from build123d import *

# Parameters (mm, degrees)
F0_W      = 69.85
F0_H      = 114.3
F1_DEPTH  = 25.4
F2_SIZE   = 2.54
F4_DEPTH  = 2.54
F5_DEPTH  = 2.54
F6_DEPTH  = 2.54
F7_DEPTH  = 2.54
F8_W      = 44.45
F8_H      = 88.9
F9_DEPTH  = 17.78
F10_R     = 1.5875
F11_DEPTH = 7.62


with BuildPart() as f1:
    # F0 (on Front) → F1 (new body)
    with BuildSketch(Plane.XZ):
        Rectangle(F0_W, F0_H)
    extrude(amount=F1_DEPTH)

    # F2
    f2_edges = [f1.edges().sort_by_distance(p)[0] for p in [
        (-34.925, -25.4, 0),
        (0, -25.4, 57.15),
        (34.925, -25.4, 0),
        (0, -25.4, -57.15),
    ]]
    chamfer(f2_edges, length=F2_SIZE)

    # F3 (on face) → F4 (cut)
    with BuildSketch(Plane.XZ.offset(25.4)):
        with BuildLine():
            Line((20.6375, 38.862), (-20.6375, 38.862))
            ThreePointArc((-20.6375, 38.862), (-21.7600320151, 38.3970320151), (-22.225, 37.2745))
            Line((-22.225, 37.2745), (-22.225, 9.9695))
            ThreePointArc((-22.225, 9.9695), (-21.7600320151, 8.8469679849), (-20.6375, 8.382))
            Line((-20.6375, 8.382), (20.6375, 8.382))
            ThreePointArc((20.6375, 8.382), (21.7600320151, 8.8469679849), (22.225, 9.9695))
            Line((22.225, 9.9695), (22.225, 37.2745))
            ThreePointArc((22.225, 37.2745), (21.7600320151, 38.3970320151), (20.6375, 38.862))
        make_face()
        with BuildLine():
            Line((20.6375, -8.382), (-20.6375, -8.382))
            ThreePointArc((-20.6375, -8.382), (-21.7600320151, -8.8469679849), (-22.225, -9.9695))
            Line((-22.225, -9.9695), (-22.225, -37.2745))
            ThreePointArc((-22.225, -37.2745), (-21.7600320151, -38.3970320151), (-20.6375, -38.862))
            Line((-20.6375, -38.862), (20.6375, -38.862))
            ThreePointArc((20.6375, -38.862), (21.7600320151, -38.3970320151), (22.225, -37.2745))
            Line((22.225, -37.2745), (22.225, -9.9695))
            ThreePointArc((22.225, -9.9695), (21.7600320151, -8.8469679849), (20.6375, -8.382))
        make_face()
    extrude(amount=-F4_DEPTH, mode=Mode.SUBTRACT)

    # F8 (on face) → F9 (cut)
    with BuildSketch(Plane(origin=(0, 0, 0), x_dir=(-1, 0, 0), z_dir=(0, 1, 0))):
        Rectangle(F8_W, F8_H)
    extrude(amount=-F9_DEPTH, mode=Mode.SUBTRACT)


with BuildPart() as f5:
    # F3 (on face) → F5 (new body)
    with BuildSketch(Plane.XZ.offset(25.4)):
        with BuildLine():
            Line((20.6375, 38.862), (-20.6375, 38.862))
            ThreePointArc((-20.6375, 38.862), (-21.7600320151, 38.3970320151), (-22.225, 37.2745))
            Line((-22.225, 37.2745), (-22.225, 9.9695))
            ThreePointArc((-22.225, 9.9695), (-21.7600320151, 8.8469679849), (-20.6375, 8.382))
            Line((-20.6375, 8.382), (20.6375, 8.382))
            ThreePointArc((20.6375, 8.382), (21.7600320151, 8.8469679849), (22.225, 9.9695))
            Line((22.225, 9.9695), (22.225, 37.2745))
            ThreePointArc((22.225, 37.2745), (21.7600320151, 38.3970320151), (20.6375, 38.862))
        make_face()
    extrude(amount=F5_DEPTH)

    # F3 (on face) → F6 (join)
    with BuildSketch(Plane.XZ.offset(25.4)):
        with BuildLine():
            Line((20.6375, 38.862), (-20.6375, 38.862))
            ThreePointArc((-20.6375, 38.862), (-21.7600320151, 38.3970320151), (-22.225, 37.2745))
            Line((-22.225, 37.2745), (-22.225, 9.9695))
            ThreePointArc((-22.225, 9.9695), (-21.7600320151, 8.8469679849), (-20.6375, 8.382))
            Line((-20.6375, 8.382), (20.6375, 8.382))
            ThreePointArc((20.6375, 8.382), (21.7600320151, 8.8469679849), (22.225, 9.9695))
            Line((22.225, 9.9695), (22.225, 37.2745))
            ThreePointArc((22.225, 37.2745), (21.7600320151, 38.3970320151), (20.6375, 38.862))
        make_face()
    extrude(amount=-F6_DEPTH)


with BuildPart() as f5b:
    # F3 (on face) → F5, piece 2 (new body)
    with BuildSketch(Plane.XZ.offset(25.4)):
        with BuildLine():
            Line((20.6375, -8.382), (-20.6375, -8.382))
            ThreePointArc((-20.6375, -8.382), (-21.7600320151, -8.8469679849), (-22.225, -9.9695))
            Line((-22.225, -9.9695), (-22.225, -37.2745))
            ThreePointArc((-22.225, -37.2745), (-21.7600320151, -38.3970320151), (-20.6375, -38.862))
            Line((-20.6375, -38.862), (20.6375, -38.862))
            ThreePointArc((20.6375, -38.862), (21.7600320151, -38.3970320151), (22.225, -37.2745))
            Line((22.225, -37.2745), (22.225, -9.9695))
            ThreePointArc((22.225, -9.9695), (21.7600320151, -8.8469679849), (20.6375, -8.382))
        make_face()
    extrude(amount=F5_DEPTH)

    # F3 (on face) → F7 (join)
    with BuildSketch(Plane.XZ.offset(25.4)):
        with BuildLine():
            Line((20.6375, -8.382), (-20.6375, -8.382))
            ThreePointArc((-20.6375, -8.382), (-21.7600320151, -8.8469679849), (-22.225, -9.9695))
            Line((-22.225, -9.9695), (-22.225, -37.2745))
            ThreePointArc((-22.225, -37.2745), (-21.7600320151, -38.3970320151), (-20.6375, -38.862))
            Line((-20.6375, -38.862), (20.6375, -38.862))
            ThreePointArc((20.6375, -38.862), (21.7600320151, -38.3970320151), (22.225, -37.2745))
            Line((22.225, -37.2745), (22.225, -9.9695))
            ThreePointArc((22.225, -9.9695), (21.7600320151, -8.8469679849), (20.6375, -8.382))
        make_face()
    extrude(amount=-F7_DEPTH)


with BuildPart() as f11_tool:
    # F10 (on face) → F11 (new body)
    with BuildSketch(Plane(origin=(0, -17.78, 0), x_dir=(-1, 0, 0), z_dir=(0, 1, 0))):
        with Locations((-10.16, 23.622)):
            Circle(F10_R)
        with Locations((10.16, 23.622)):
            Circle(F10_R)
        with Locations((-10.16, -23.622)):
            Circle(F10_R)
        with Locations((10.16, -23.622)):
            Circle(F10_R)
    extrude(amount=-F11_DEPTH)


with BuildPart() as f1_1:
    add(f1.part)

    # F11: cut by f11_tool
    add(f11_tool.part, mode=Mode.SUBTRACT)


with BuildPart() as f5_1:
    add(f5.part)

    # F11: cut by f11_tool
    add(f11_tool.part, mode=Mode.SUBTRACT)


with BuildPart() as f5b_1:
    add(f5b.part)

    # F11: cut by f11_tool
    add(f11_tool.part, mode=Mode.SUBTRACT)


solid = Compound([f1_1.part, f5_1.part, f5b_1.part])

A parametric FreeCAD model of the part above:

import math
import FreeCAD as App
import Part
import Sketcher
Q = App.Units.Quantity


def edges_at(feature, points):
    """Names of the edges that pass closest to the given points."""
    edges = feature.Shape.Edges
    near = lambda p: min(range(len(edges)), key=lambda i: edges[i].distToShape(Part.Vertex(*p))[0])
    return sorted({f"Edge{near(p) + 1}" for p in points})

doc = App.newDocument("Part")
params = doc.addObject("Spreadsheet::Sheet", "Params")
for row, (alias, value) in enumerate([
    ("sketch1_height", "4.5 in"),
    ("sketch1_width", "2.75 in"),
    ("pad1_length", "1 in"),
    ("chamfer_size", "0.1 in"),
    ("sketch2_radius", "0.0625 in"),
    ("sketch2_width", "1.625 in"),
    ("pocket1_length", "0.1 in"),
    ("sketch3_height", "3.5 in"),
    ("sketch3_width", "1.75 in"),
    ("pocket2_length", "0.7 in"),
    ("sketch4_radius", "0.0625 in"),
    ("sketch4_width", "1.625 in"),
    ("pad2_length", "0.1 in"),
    ("sketch5_radius", "0.0625 in"),
    ("sketch5_width", "1.625 in"),
    ("pad3_length", "0.1 in"),
    ("sketch6_radius", "0.0625 in"),
    ("sketch6_width", "1.625 in"),
    ("pad4_length", "0.1 in"),
    ("sketch7_radius", "0.0625 in"),
    ("sketch7_width", "1.625 in"),
    ("pad5_length", "0.1 in"),
    ("sketch8_diameter", "0.125 in"),
    ("pad6_length", "0.3 in"),
], start=1):
    params.set(f"A{row}", alias)
    params.set(f"B{row}", "=" + value)
    params.setAlias(f"B{row}", alias)

body = doc.addObject("PartDesign::Body", "Body")

# Sketch on XZ plane
sketch1 = body.newObject("Sketcher::SketchObject", "Sketch")
sketch1.AttachmentSupport = (doc.getObject("XZ_Plane"), [""])
sketch1.MapMode = "FlatFace"
sketch1.addGeometry([
    Part.LineSegment(App.Vector(-34.925, 57.15, 0), App.Vector(-34.925, -57.15, 0)),
    Part.LineSegment(App.Vector(-34.925, -57.15, 0), App.Vector(34.925, -57.15, 0)),
    Part.LineSegment(App.Vector(34.925, -57.15, 0), App.Vector(34.925, 57.15, 0)),
    Part.LineSegment(App.Vector(34.925, 57.15, 0), App.Vector(-34.925, 57.15, 0)),
], False)
sketch1.addConstraint([
    Sketcher.Constraint("Coincident", 0, 2, 1, 1),
    Sketcher.Constraint("Coincident", 1, 2, 2, 1),
    Sketcher.Constraint("Coincident", 2, 2, 3, 1),
    Sketcher.Constraint("Coincident", 3, 2, 0, 1),
    Sketcher.Constraint("Vertical", 0),
    Sketcher.Constraint("Horizontal", 1),
    Sketcher.Constraint("Vertical", 2),
    Sketcher.Constraint("Horizontal", 3),
    Sketcher.Constraint("Symmetric", 0, 2, 2, 2, -1, 1),
    Sketcher.Constraint("DistanceY", 0, 2, 0, 1, Q("4.5 in")),
    Sketcher.Constraint("DistanceX", 1, 1, 1, 2, Q("2.75 in")),
])
sketch1.setExpression("Constraints[9]", "Params.sketch1_height")
sketch1.setExpression("Constraints[10]", "Params.sketch1_width")
pad1 = body.newObject("PartDesign::Pad", "Pad")
pad1.Profile = sketch1
pad1.setExpression("Length", "Params.pad1_length")
doc.recompute()

chamfer = body.newObject("PartDesign::Chamfer", "Chamfer")
chamfer.Base = (pad1, edges_at(pad1, [
    (-34.925, -25.4, 0),
    (0, -25.4, 57.15),
    (34.925, -25.4, 0),
    (0, -25.4, -57.15),
]))
chamfer.setExpression("Size", "Params.chamfer_size")

# Sketch on XZ plane
sketch2 = body.newObject("Sketcher::SketchObject", "Sketch001")
sketch2.AttachmentSupport = (doc.getObject("XZ_Plane"), [""])
sketch2.MapMode = "FlatFace"
sketch2.AttachmentOffset = App.Placement(App.Vector(0, 0, 1 * 25.4), App.Rotation())
sketch2.addGeometry([
    Part.LineSegment(App.Vector(20.6375, 38.862, 0), App.Vector(-20.6375, 38.862, 0)),  # 0
    Part.ArcOfCircle(Part.Circle(App.Vector(-20.6375, 37.2745, 0), App.Vector(0, 0, 1), 1.5875), math.radians(90), math.radians(180)),  # 1
    Part.LineSegment(App.Vector(-22.225, 37.2745, 0), App.Vector(-22.225, 9.9695, 0)),  # 2
    Part.ArcOfCircle(Part.Circle(App.Vector(-20.6375, 9.9695, 0), App.Vector(0, 0, 1), 1.5875), math.radians(180), math.radians(270)),  # 3
    Part.LineSegment(App.Vector(-20.6375, 8.382, 0), App.Vector(20.6375, 8.382, 0)),  # 4
    Part.ArcOfCircle(Part.Circle(App.Vector(20.6375, 9.9695, 0), App.Vector(0, 0, 1), 1.5875), math.radians(-90), math.radians(0)),  # 5
    Part.LineSegment(App.Vector(22.225, 9.9695, 0), App.Vector(22.225, 37.2745, 0)),  # 6
    Part.ArcOfCircle(Part.Circle(App.Vector(20.6375, 37.2745, 0), App.Vector(0, 0, 1), 1.5875), math.radians(0), math.radians(90)),  # 7
    Part.LineSegment(App.Vector(20.6375, -8.382, 0), App.Vector(-20.6375, -8.382, 0)),  # 8
    Part.ArcOfCircle(Part.Circle(App.Vector(-20.6375, -9.9695, 0), App.Vector(0, 0, 1), 1.5875), math.radians(90), math.radians(180)),  # 9
    Part.LineSegment(App.Vector(-22.225, -9.9695, 0), App.Vector(-22.225, -37.2745, 0)),  # 10
    Part.ArcOfCircle(Part.Circle(App.Vector(-20.6375, -37.2745, 0), App.Vector(0, 0, 1), 1.5875), math.radians(180), math.radians(270)),  # 11
    Part.LineSegment(App.Vector(-20.6375, -38.862, 0), App.Vector(20.6375, -38.862, 0)),  # 12
    Part.ArcOfCircle(Part.Circle(App.Vector(20.6375, -37.2745, 0), App.Vector(0, 0, 1), 1.5875), math.radians(-90), math.radians(0)),  # 13
    Part.LineSegment(App.Vector(22.225, -37.2745, 0), App.Vector(22.225, -9.9695, 0)),  # 14
    Part.ArcOfCircle(Part.Circle(App.Vector(20.6375, -9.9695, 0), App.Vector(0, 0, 1), 1.5875), math.radians(0), math.radians(90)),  # 15
], False)
sketch2.addConstraint([
    Sketcher.Constraint("Tangent", 0, 2, 1, 1),
    Sketcher.Constraint("Tangent", 1, 2, 2, 1),
    Sketcher.Constraint("Tangent", 2, 2, 3, 1),
    Sketcher.Constraint("Tangent", 3, 2, 4, 1),
    Sketcher.Constraint("Tangent", 4, 2, 5, 1),
    Sketcher.Constraint("Tangent", 5, 2, 6, 1),
    Sketcher.Constraint("Tangent", 6, 2, 7, 1),
    Sketcher.Constraint("Tangent", 7, 2, 0, 1),
    Sketcher.Constraint("Tangent", 8, 2, 9, 1),
    Sketcher.Constraint("Tangent", 9, 2, 10, 1),
    Sketcher.Constraint("Tangent", 10, 2, 11, 1),
    Sketcher.Constraint("Tangent", 11, 2, 12, 1),
    Sketcher.Constraint("Tangent", 12, 2, 13, 1),
    Sketcher.Constraint("Tangent", 13, 2, 14, 1),
    Sketcher.Constraint("Tangent", 14, 2, 15, 1),
    Sketcher.Constraint("Tangent", 15, 2, 8, 1),
    Sketcher.Constraint("Horizontal", 0),
    Sketcher.Constraint("Vertical", 2),
    Sketcher.Constraint("Horizontal", 4),
    Sketcher.Constraint("Vertical", 6),
    Sketcher.Constraint("Horizontal", 8),
    Sketcher.Constraint("Vertical", 10),
    Sketcher.Constraint("Horizontal", 12),
    Sketcher.Constraint("Vertical", 14),
    Sketcher.Constraint("Equal", 1, 3),
    Sketcher.Constraint("Equal", 3, 5),
    Sketcher.Constraint("Equal", 5, 7),
    Sketcher.Constraint("Equal", 7, 9),
    Sketcher.Constraint("Equal", 9, 11),
    Sketcher.Constraint("Equal", 11, 13),
    Sketcher.Constraint("Equal", 13, 15),
    Sketcher.Constraint("Symmetric", 5, 3, 9, 3, -1, 1),
    Sketcher.Constraint("Symmetric", 1, 3, 13, 3, -1, 1),
    Sketcher.Constraint("Vertical", 3, 3, 9, 3),
    Sketcher.Constraint("Radius", 1, Q("0.0625 in")),
    Sketcher.Constraint("DistanceY", 4, 2, 7, 2, Q("1.2 in")),
    Sketcher.Constraint("DistanceX", 0, 2, 0, 1, Q("1.625 in")),
    Sketcher.Constraint("DistanceY", -1, 1, 0, 2, Q("1.53 in")),
])
sketch2.setExpression("Constraints[34]", "Params.sketch2_radius")
sketch2.setExpression("Constraints[36]", "Params.sketch2_width")
pocket1 = body.newObject("PartDesign::Pocket", "Pocket")
pocket1.Profile = sketch2
pocket1.setExpression("Length", "Params.pocket1_length")

# Sketch on XZ plane
sketch3 = body.newObject("Sketcher::SketchObject", "Sketch002")
sketch3.AttachmentSupport = (doc.getObject("XZ_Plane"), [""])
sketch3.MapMode = "FlatFace"
sketch3.addGeometry([
    Part.LineSegment(App.Vector(22.225, 44.45, 0), App.Vector(22.225, -44.45, 0)),
    Part.LineSegment(App.Vector(22.225, -44.45, 0), App.Vector(-22.225, -44.45, 0)),
    Part.LineSegment(App.Vector(-22.225, -44.45, 0), App.Vector(-22.225, 44.45, 0)),
    Part.LineSegment(App.Vector(-22.225, 44.45, 0), App.Vector(22.225, 44.45, 0)),
], False)
sketch3.addConstraint([
    Sketcher.Constraint("Coincident", 0, 2, 1, 1),
    Sketcher.Constraint("Coincident", 1, 2, 2, 1),
    Sketcher.Constraint("Coincident", 2, 2, 3, 1),
    Sketcher.Constraint("Coincident", 3, 2, 0, 1),
    Sketcher.Constraint("Vertical", 0),
    Sketcher.Constraint("Horizontal", 1),
    Sketcher.Constraint("Vertical", 2),
    Sketcher.Constraint("Horizontal", 3),
    Sketcher.Constraint("Symmetric", 0, 2, 2, 2, -1, 1),
    Sketcher.Constraint("DistanceY", 0, 2, 0, 1, Q("3.5 in")),
    Sketcher.Constraint("DistanceX", 1, 2, 1, 1, Q("1.75 in")),
])
sketch3.setExpression("Constraints[9]", "Params.sketch3_height")
sketch3.setExpression("Constraints[10]", "Params.sketch3_width")
pocket2 = body.newObject("PartDesign::Pocket", "Pocket001")
pocket2.Profile = sketch3
pocket2.setExpression("Length", "Params.pocket2_length")
pocket2.Reversed = True
body2 = doc.addObject("PartDesign::Body", "Body001")

# Sketch on XZ plane
sketch4 = body2.newObject("Sketcher::SketchObject", "Sketch003")
sketch4.AttachmentSupport = (doc.getObject("XZ_Plane001"), [""])
sketch4.MapMode = "FlatFace"
sketch4.AttachmentOffset = App.Placement(App.Vector(0, 0, 1 * 25.4), App.Rotation())
sketch4.addGeometry([
    Part.LineSegment(App.Vector(20.6375, 38.862, 0), App.Vector(-20.6375, 38.862, 0)),  # 0
    Part.ArcOfCircle(Part.Circle(App.Vector(-20.6375, 37.2745, 0), App.Vector(0, 0, 1), 1.5875), math.radians(90), math.radians(180)),  # 1
    Part.LineSegment(App.Vector(-22.225, 37.2745, 0), App.Vector(-22.225, 9.9695, 0)),  # 2
    Part.ArcOfCircle(Part.Circle(App.Vector(-20.6375, 9.9695, 0), App.Vector(0, 0, 1), 1.5875), math.radians(180), math.radians(270)),  # 3
    Part.LineSegment(App.Vector(-20.6375, 8.382, 0), App.Vector(20.6375, 8.382, 0)),  # 4
    Part.ArcOfCircle(Part.Circle(App.Vector(20.6375, 9.9695, 0), App.Vector(0, 0, 1), 1.5875), math.radians(-90), math.radians(0)),  # 5
    Part.LineSegment(App.Vector(22.225, 9.9695, 0), App.Vector(22.225, 37.2745, 0)),  # 6
    Part.ArcOfCircle(Part.Circle(App.Vector(20.6375, 37.2745, 0), App.Vector(0, 0, 1), 1.5875), math.radians(0), math.radians(90)),  # 7
], False)
sketch4.addConstraint([
    Sketcher.Constraint("Tangent", 0, 2, 1, 1),
    Sketcher.Constraint("Tangent", 1, 2, 2, 1),
    Sketcher.Constraint("Tangent", 2, 2, 3, 1),
    Sketcher.Constraint("Tangent", 3, 2, 4, 1),
    Sketcher.Constraint("Tangent", 4, 2, 5, 1),
    Sketcher.Constraint("Tangent", 5, 2, 6, 1),
    Sketcher.Constraint("Tangent", 6, 2, 7, 1),
    Sketcher.Constraint("Tangent", 7, 2, 0, 1),
    Sketcher.Constraint("Horizontal", 0),
    Sketcher.Constraint("Vertical", 2),
    Sketcher.Constraint("Horizontal", 4),
    Sketcher.Constraint("Vertical", 6),
    Sketcher.Constraint("Equal", 1, 3),
    Sketcher.Constraint("Equal", 3, 5),
    Sketcher.Constraint("Equal", 5, 7),
    Sketcher.Constraint("Radius", 1, Q("0.0625 in")),
    Sketcher.Constraint("DistanceY", 3, 2, 0, 2, Q("1.2 in")),
    Sketcher.Constraint("DistanceX", 0, 2, 0, 1, Q("1.625 in")),
    Sketcher.Constraint("DistanceY", -1, 1, 0, 2, Q("1.53 in")),
    Sketcher.Constraint("DistanceX", 1, 3, -1, 1, Q("0.8125 in")),
])
sketch4.setExpression("Constraints[15]", "Params.sketch4_radius")
sketch4.setExpression("Constraints[17]", "Params.sketch4_width")
pad2 = body2.newObject("PartDesign::Pad", "Pad001")
pad2.Profile = sketch4
pad2.setExpression("Length", "Params.pad2_length")

# Sketch on XZ plane
sketch5 = body2.newObject("Sketcher::SketchObject", "Sketch004")
sketch5.AttachmentSupport = (doc.getObject("XZ_Plane001"), [""])
sketch5.MapMode = "FlatFace"
sketch5.AttachmentOffset = App.Placement(App.Vector(0, 0, 1 * 25.4), App.Rotation())
sketch5.addGeometry([
    Part.LineSegment(App.Vector(20.6375, 38.862, 0), App.Vector(-20.6375, 38.862, 0)),  # 0
    Part.ArcOfCircle(Part.Circle(App.Vector(-20.6375, 37.2745, 0), App.Vector(0, 0, 1), 1.5875), math.radians(90), math.radians(180)),  # 1
    Part.LineSegment(App.Vector(-22.225, 37.2745, 0), App.Vector(-22.225, 9.9695, 0)),  # 2
    Part.ArcOfCircle(Part.Circle(App.Vector(-20.6375, 9.9695, 0), App.Vector(0, 0, 1), 1.5875), math.radians(180), math.radians(270)),  # 3
    Part.LineSegment(App.Vector(-20.6375, 8.382, 0), App.Vector(20.6375, 8.382, 0)),  # 4
    Part.ArcOfCircle(Part.Circle(App.Vector(20.6375, 9.9695, 0), App.Vector(0, 0, 1), 1.5875), math.radians(-90), math.radians(0)),  # 5
    Part.LineSegment(App.Vector(22.225, 9.9695, 0), App.Vector(22.225, 37.2745, 0)),  # 6
    Part.ArcOfCircle(Part.Circle(App.Vector(20.6375, 37.2745, 0), App.Vector(0, 0, 1), 1.5875), math.radians(0), math.radians(90)),  # 7
], False)
sketch5.addConstraint([
    Sketcher.Constraint("Tangent", 0, 2, 1, 1),
    Sketcher.Constraint("Tangent", 1, 2, 2, 1),
    Sketcher.Constraint("Tangent", 2, 2, 3, 1),
    Sketcher.Constraint("Tangent", 3, 2, 4, 1),
    Sketcher.Constraint("Tangent", 4, 2, 5, 1),
    Sketcher.Constraint("Tangent", 5, 2, 6, 1),
    Sketcher.Constraint("Tangent", 6, 2, 7, 1),
    Sketcher.Constraint("Tangent", 7, 2, 0, 1),
    Sketcher.Constraint("Horizontal", 0),
    Sketcher.Constraint("Vertical", 2),
    Sketcher.Constraint("Horizontal", 4),
    Sketcher.Constraint("Vertical", 6),
    Sketcher.Constraint("Equal", 1, 3),
    Sketcher.Constraint("Equal", 3, 5),
    Sketcher.Constraint("Equal", 5, 7),
    Sketcher.Constraint("Radius", 1, Q("0.0625 in")),
    Sketcher.Constraint("DistanceY", 3, 2, 0, 2, Q("1.2 in")),
    Sketcher.Constraint("DistanceX", 0, 2, 0, 1, Q("1.625 in")),
    Sketcher.Constraint("DistanceY", -1, 1, 0, 2, Q("1.53 in")),
    Sketcher.Constraint("DistanceX", 1, 3, -1, 1, Q("0.8125 in")),
])
sketch5.setExpression("Constraints[15]", "Params.sketch5_radius")
sketch5.setExpression("Constraints[17]", "Params.sketch5_width")
pad3 = body2.newObject("PartDesign::Pad", "Pad002")
pad3.Profile = sketch5
pad3.setExpression("Length", "Params.pad3_length")
pad3.Reversed = True
body3 = doc.addObject("PartDesign::Body", "Body002")

# Sketch on XZ plane
sketch6 = body3.newObject("Sketcher::SketchObject", "Sketch005")
sketch6.AttachmentSupport = (doc.getObject("XZ_Plane002"), [""])
sketch6.MapMode = "FlatFace"
sketch6.AttachmentOffset = App.Placement(App.Vector(0, 0, 1 * 25.4), App.Rotation())
sketch6.addGeometry([
    Part.LineSegment(App.Vector(20.6375, -8.382, 0), App.Vector(-20.6375, -8.382, 0)),  # 0
    Part.ArcOfCircle(Part.Circle(App.Vector(-20.6375, -9.9695, 0), App.Vector(0, 0, 1), 1.5875), math.radians(90), math.radians(180)),  # 1
    Part.LineSegment(App.Vector(-22.225, -9.9695, 0), App.Vector(-22.225, -37.2745, 0)),  # 2
    Part.ArcOfCircle(Part.Circle(App.Vector(-20.6375, -37.2745, 0), App.Vector(0, 0, 1), 1.5875), math.radians(180), math.radians(270)),  # 3
    Part.LineSegment(App.Vector(-20.6375, -38.862, 0), App.Vector(20.6375, -38.862, 0)),  # 4
    Part.ArcOfCircle(Part.Circle(App.Vector(20.6375, -37.2745, 0), App.Vector(0, 0, 1), 1.5875), math.radians(-90), math.radians(0)),  # 5
    Part.LineSegment(App.Vector(22.225, -37.2745, 0), App.Vector(22.225, -9.9695, 0)),  # 6
    Part.ArcOfCircle(Part.Circle(App.Vector(20.6375, -9.9695, 0), App.Vector(0, 0, 1), 1.5875), math.radians(0), math.radians(90)),  # 7
], False)
sketch6.addConstraint([
    Sketcher.Constraint("Tangent", 0, 2, 1, 1),
    Sketcher.Constraint("Tangent", 1, 2, 2, 1),
    Sketcher.Constraint("Tangent", 2, 2, 3, 1),
    Sketcher.Constraint("Tangent", 3, 2, 4, 1),
    Sketcher.Constraint("Tangent", 4, 2, 5, 1),
    Sketcher.Constraint("Tangent", 5, 2, 6, 1),
    Sketcher.Constraint("Tangent", 6, 2, 7, 1),
    Sketcher.Constraint("Tangent", 7, 2, 0, 1),
    Sketcher.Constraint("Horizontal", 0),
    Sketcher.Constraint("Vertical", 2),
    Sketcher.Constraint("Horizontal", 4),
    Sketcher.Constraint("Vertical", 6),
    Sketcher.Constraint("Equal", 1, 3),
    Sketcher.Constraint("Equal", 3, 5),
    Sketcher.Constraint("Equal", 5, 7),
    Sketcher.Constraint("Radius", 1, Q("0.0625 in")),
    Sketcher.Constraint("DistanceY", 3, 2, 0, 2, Q("1.2 in")),
    Sketcher.Constraint("DistanceX", 0, 2, 0, 1, Q("1.625 in")),
    Sketcher.Constraint("DistanceY", 0, 2, -1, 1, Q("0.33 in")),
    Sketcher.Constraint("DistanceX", 1, 3, -1, 1, Q("0.8125 in")),
])
sketch6.setExpression("Constraints[15]", "Params.sketch6_radius")
sketch6.setExpression("Constraints[17]", "Params.sketch6_width")
pad4 = body3.newObject("PartDesign::Pad", "Pad003")
pad4.Profile = sketch6
pad4.setExpression("Length", "Params.pad4_length")

# Sketch on XZ plane
sketch7 = body3.newObject("Sketcher::SketchObject", "Sketch006")
sketch7.AttachmentSupport = (doc.getObject("XZ_Plane002"), [""])
sketch7.MapMode = "FlatFace"
sketch7.AttachmentOffset = App.Placement(App.Vector(0, 0, 1 * 25.4), App.Rotation())
sketch7.addGeometry([
    Part.LineSegment(App.Vector(20.6375, -8.382, 0), App.Vector(-20.6375, -8.382, 0)),  # 0
    Part.ArcOfCircle(Part.Circle(App.Vector(-20.6375, -9.9695, 0), App.Vector(0, 0, 1), 1.5875), math.radians(90), math.radians(180)),  # 1
    Part.LineSegment(App.Vector(-22.225, -9.9695, 0), App.Vector(-22.225, -37.2745, 0)),  # 2
    Part.ArcOfCircle(Part.Circle(App.Vector(-20.6375, -37.2745, 0), App.Vector(0, 0, 1), 1.5875), math.radians(180), math.radians(270)),  # 3
    Part.LineSegment(App.Vector(-20.6375, -38.862, 0), App.Vector(20.6375, -38.862, 0)),  # 4
    Part.ArcOfCircle(Part.Circle(App.Vector(20.6375, -37.2745, 0), App.Vector(0, 0, 1), 1.5875), math.radians(-90), math.radians(0)),  # 5
    Part.LineSegment(App.Vector(22.225, -37.2745, 0), App.Vector(22.225, -9.9695, 0)),  # 6
    Part.ArcOfCircle(Part.Circle(App.Vector(20.6375, -9.9695, 0), App.Vector(0, 0, 1), 1.5875), math.radians(0), math.radians(90)),  # 7
], False)
sketch7.addConstraint([
    Sketcher.Constraint("Tangent", 0, 2, 1, 1),
    Sketcher.Constraint("Tangent", 1, 2, 2, 1),
    Sketcher.Constraint("Tangent", 2, 2, 3, 1),
    Sketcher.Constraint("Tangent", 3, 2, 4, 1),
    Sketcher.Constraint("Tangent", 4, 2, 5, 1),
    Sketcher.Constraint("Tangent", 5, 2, 6, 1),
    Sketcher.Constraint("Tangent", 6, 2, 7, 1),
    Sketcher.Constraint("Tangent", 7, 2, 0, 1),
    Sketcher.Constraint("Horizontal", 0),
    Sketcher.Constraint("Vertical", 2),
    Sketcher.Constraint("Horizontal", 4),
    Sketcher.Constraint("Vertical", 6),
    Sketcher.Constraint("Equal", 1, 3),
    Sketcher.Constraint("Equal", 3, 5),
    Sketcher.Constraint("Equal", 5, 7),
    Sketcher.Constraint("Radius", 1, Q("0.0625 in")),
    Sketcher.Constraint("DistanceY", 3, 2, 0, 2, Q("1.2 in")),
    Sketcher.Constraint("DistanceX", 0, 2, 0, 1, Q("1.625 in")),
    Sketcher.Constraint("DistanceY", 0, 2, -1, 1, Q("0.33 in")),
    Sketcher.Constraint("DistanceX", 1, 3, -1, 1, Q("0.8125 in")),
])
sketch7.setExpression("Constraints[15]", "Params.sketch7_radius")
sketch7.setExpression("Constraints[17]", "Params.sketch7_width")
pad5 = body3.newObject("PartDesign::Pad", "Pad004")
pad5.Profile = sketch7
pad5.setExpression("Length", "Params.pad5_length")
pad5.Reversed = True
body4 = doc.addObject("PartDesign::Body", "Body003")
body4.AllowCompound = True

# Sketch on XZ plane
sketch8 = body4.newObject("Sketcher::SketchObject", "Sketch007")
sketch8.AttachmentSupport = (doc.getObject("XZ_Plane003"), [""])
sketch8.MapMode = "FlatFace"
sketch8.AttachmentOffset = App.Placement(App.Vector(0, 0, 0.7 * 25.4), App.Rotation())
sketch8.addGeometry([
    Part.Circle(App.Vector(10.16, 23.622, 0), App.Vector(0, 0, 1), 1.5875),
    Part.Circle(App.Vector(-10.16, 23.622, 0), App.Vector(0, 0, 1), 1.5875),
    Part.Circle(App.Vector(10.16, -23.622, 0), App.Vector(0, 0, 1), 1.5875),
    Part.Circle(App.Vector(-10.16, -23.622, 0), App.Vector(0, 0, 1), 1.5875),
], False)
sketch8.addConstraint([
    Sketcher.Constraint("Equal", 0, 1),
    Sketcher.Constraint("Equal", 1, 2),
    Sketcher.Constraint("Equal", 2, 3),
    Sketcher.Constraint("Symmetric", 1, 3, 2, 3, -1, 1),
    Sketcher.Constraint("Symmetric", 0, 3, 3, 3, -1, 1),
    Sketcher.Constraint("Symmetric", 0, 3, 1, 3, -2),
    Sketcher.Constraint("Diameter", 0, Q("0.125 in")),
    Sketcher.Constraint("DistanceX", -1, 1, 0, 3, Q("0.4 in")),
    Sketcher.Constraint("DistanceY", -1, 1, 0, 3, Q("0.93 in")),
])
sketch8.setExpression("Constraints[6]", "Params.sketch8_diameter")
pad6 = body4.newObject("PartDesign::Pad", "Pad005")
pad6.Profile = sketch8
pad6.setExpression("Length", "Params.pad6_length")
doc.recompute()

body5 = doc.addObject("PartDesign::Body", "Body004")
body5.BaseFeature = body4
boolean = body.newObject("PartDesign::Boolean", "Boolean")
boolean.Type = "Cut"
boolean.addObjects([body5])
doc.recompute()

body6 = doc.addObject("PartDesign::Body", "Body005")
body6.BaseFeature = body4
boolean2 = body2.newObject("PartDesign::Boolean", "Boolean001")
boolean2.Type = "Cut"
boolean2.addObjects([body6])
doc.recompute()

boolean3 = body3.newObject("PartDesign::Boolean", "Boolean002")
boolean3.Type = "Cut"
boolean3.addObjects([body4])

doc.recompute()
